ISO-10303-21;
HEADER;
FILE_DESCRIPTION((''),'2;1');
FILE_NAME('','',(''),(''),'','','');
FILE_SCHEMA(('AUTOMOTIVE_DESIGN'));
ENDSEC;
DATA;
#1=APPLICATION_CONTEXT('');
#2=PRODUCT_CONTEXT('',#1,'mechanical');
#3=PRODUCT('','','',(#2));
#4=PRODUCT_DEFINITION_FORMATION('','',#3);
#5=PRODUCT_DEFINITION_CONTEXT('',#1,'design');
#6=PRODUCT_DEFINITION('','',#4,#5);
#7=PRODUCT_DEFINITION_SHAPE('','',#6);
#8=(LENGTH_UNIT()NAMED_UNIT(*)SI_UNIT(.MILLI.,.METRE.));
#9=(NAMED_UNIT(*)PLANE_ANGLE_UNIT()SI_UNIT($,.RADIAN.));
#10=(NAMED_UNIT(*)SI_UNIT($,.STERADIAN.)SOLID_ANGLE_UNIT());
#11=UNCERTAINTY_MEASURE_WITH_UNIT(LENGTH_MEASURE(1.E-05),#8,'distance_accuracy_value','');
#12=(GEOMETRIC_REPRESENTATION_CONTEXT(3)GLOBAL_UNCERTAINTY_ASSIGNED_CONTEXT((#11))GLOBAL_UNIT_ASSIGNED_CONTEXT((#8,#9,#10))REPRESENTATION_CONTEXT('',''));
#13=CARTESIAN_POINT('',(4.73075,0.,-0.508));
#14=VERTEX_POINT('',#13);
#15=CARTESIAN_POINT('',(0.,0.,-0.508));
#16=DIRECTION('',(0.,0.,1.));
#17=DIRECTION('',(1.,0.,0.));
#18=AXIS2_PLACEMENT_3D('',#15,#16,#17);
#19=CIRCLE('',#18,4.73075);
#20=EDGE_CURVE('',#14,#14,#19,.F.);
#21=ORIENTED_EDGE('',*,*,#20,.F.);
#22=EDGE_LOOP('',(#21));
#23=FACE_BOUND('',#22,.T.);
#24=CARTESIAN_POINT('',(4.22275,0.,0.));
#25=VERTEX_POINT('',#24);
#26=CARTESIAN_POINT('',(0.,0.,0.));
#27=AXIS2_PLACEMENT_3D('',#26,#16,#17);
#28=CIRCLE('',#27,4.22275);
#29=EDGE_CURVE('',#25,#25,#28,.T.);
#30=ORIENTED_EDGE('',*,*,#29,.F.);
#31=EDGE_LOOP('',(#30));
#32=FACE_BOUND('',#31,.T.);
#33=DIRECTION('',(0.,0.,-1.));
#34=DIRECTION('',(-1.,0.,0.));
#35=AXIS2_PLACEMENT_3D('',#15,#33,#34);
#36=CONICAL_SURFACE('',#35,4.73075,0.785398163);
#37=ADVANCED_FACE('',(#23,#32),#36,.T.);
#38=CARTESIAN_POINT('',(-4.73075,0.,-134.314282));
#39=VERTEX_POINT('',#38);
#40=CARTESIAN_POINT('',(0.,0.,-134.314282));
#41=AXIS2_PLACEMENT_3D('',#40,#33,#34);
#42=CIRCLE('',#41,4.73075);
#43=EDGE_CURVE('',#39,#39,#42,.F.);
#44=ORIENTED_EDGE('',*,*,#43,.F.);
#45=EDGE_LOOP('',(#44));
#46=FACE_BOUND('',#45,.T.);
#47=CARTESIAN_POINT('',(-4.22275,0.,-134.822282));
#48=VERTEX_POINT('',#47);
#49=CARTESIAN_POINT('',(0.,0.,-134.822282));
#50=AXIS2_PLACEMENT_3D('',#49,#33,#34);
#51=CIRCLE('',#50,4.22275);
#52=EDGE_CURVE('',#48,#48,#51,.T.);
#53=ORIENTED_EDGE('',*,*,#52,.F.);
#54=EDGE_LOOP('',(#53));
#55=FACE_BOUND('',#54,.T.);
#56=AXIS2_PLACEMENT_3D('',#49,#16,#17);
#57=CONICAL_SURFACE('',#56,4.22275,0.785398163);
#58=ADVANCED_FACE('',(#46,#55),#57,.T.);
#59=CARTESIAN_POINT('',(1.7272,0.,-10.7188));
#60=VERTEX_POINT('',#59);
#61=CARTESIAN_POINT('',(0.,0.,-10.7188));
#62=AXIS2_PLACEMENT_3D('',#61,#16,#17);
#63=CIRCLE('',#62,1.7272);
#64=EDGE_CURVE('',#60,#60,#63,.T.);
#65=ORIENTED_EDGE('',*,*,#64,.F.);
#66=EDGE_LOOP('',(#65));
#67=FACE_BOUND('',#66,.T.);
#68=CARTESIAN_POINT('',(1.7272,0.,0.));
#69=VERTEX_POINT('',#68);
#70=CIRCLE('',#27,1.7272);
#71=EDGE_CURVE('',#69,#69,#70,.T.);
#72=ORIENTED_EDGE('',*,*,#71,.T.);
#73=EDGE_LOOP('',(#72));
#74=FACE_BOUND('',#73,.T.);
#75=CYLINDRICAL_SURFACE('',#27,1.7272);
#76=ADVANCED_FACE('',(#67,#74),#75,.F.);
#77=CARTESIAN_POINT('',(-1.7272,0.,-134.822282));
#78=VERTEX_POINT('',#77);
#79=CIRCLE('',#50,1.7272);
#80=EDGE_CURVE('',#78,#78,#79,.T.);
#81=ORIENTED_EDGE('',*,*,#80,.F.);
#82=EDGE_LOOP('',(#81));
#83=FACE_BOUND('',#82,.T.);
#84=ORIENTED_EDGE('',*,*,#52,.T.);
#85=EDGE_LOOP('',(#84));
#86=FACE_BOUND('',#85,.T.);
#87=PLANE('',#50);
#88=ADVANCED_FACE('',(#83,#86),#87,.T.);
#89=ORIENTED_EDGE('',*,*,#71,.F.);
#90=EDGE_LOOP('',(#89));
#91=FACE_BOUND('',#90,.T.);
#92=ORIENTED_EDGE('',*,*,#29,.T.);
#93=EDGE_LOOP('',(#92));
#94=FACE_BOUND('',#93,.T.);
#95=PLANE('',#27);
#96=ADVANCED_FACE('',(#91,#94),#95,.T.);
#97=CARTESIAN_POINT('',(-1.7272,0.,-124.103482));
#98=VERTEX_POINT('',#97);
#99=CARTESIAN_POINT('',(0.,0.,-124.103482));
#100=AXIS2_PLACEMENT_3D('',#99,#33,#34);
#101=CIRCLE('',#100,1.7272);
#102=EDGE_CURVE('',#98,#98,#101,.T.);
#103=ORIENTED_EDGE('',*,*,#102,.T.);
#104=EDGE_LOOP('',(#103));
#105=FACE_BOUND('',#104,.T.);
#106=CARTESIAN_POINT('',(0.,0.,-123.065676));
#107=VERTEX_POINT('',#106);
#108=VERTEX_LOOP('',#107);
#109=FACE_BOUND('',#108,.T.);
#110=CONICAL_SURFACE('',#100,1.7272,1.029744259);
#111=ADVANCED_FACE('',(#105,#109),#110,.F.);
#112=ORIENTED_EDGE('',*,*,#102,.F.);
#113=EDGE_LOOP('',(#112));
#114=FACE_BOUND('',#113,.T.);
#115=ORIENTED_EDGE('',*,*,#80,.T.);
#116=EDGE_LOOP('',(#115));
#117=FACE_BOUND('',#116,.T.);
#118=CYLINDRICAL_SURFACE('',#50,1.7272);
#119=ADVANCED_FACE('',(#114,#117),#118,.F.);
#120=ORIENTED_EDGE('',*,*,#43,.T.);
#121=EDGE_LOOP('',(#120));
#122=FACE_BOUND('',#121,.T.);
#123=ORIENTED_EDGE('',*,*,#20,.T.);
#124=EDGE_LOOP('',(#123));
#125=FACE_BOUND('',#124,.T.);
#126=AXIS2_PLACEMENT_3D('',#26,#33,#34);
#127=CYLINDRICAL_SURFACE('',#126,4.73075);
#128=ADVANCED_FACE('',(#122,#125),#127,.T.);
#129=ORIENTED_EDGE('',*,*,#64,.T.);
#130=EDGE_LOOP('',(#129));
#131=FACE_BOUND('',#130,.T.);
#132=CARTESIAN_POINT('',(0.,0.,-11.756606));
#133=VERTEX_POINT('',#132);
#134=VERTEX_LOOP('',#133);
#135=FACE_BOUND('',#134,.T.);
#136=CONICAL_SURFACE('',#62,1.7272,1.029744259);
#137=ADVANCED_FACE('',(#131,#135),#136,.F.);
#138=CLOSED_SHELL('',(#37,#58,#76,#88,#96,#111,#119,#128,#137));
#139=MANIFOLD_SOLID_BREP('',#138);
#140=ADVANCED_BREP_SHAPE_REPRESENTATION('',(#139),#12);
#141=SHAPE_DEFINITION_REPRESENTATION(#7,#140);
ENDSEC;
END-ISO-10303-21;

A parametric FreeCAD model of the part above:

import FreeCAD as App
import Part
import Sketcher

V = App.Vector
Q = App.Units.Quantity


def edges_at(feature, points):
    """Names of the edges that pass closest to the given points."""
    edges = feature.Shape.Edges
    near = lambda p: min(range(len(edges)), key=lambda i: edges[i].distToShape(Part.Vertex(*p))[0])
    return sorted({f"Edge{near(p) + 1}" for p in points})

doc = App.newDocument("Part")
body = doc.addObject("PartDesign::Body", "Body")

# Sketch on YZ plane
sketch1 = doc.addObject("Sketcher::SketchObject", "Sketch")
body.addObject(sketch1)
sketch1.AttachmentSupport = (doc.YZ_Plane, [""])
sketch1.MapMode = "FlatFace"
sketch1.addGeometry(Part.LineSegment(V(4.7, 0, 0), V(0, 0, 0)), False)
sketch1.addGeometry(Part.LineSegment(V(0, 0, 0), V(0, -134.8, 0)), False)
sketch1.addGeometry(Part.LineSegment(V(0, -134.8, 0), V(4.7, -134.8, 0)), False)
sketch1.addGeometry(Part.LineSegment(V(4.7, -134.8, 0), V(4.7, 0, 0)), False)
sketch1.addConstraint(Sketcher.Constraint("Coincident", 0, 2, 1, 1))
sketch1.addConstraint(Sketcher.Constraint("Coincident", 1, 2, 2, 1))
sketch1.addConstraint(Sketcher.Constraint("Coincident", 2, 2, 3, 1))
sketch1.addConstraint(Sketcher.Constraint("Coincident", 3, 2, 0, 1))
sketch1.addConstraint(Sketcher.Constraint("Horizontal", 0))
sketch1.addConstraint(Sketcher.Constraint("Vertical", 1))
sketch1.addConstraint(Sketcher.Constraint("Horizontal", 2))
sketch1.addConstraint(Sketcher.Constraint("Vertical", 3))
sketch1.addConstraint(Sketcher.Constraint("Coincident", 0, 2, -1, 1))
sketch1.addConstraint(Sketcher.Constraint("DistanceX", 0, 2, 0, 1, 4.73075))
sketch1.addConstraint(Sketcher.Constraint("DistanceY", 1, 2, 1, 1, 134.822282))
revolution = doc.addObject("PartDesign::Revolution", "Revolution")
body.addObject(revolution)
revolution.Profile = sketch1
revolution.ReferenceAxis = (sketch1, ["V_Axis"])
revolution.Angle = 360
doc.recompute()

chamfer = doc.addObject("PartDesign::Chamfer", "Chamfer")
body.addObject(chamfer)
chamfer.Base = (revolution, edges_at(revolution, [(4.731, 0, -134.822), (4.731, 0, 0)]))
chamfer.Size = Q("0.02 in")

# Sketch on XY plane
sketch2 = doc.addObject("Sketcher::SketchObject", "Sketch001")
body.addObject(sketch2)
sketch2.AttachmentSupport = (doc.XY_Plane, [""])
sketch2.MapMode = "FlatFace"
sketch2.addGeometry(Part.Circle(V(0, 0, 0), V(0, 0, 1), 1.7), False)
sketch2.addConstraint(Sketcher.Constraint("Coincident", 0, 3, -1, 1))
sketch2.addConstraint(Sketcher.Constraint("Diameter", 0, Q("0.136 in")))
doc.recompute()
hole = doc.addObject("PartDesign::Hole", "Hole")
body.addObject(hole)
hole.Profile = sketch2
hole.ThreadType = "None"
hole.Diameter = Q("0.136 in")
hole.DepthType = "Dimension"
hole.Depth = Q("0.422 in")
hole.DrillPoint = "Angled"
hole.DrillPointAngle = 118

# Sketch on XY plane
sketch3 = doc.addObject("Sketcher::SketchObject", "Sketch002")
body.addObject(sketch3)
sketch3.AttachmentSupport = (doc.XY_Plane, [""])
sketch3.MapMode = "FlatFace"
sketch3.AttachmentOffset = App.Placement(V(0, 0, -134.822282), App.Rotation())
sketch3.addGeometry(Part.Circle(V(0, 0, 0), V(0, 0, 1), 1.7), False)
sketch3.addConstraint(Sketcher.Constraint("Coincident", 0, 3, -1, 1))
sketch3.addConstraint(Sketcher.Constraint("Diameter", 0, Q("0.136 in")))
doc.recompute()
hole2 = doc.addObject("PartDesign::Hole", "Hole001")
body.addObject(hole2)
hole2.Profile = sketch3
hole2.ThreadType = "None"
hole2.Diameter = Q("0.136 in")
hole2.DepthType = "Dimension"
hole2.Depth = Q("0.422 in")
hole2.DrillPoint = "Angled"
hole2.DrillPointAngle = 118
hole2.Reversed = True

doc.recompute()
